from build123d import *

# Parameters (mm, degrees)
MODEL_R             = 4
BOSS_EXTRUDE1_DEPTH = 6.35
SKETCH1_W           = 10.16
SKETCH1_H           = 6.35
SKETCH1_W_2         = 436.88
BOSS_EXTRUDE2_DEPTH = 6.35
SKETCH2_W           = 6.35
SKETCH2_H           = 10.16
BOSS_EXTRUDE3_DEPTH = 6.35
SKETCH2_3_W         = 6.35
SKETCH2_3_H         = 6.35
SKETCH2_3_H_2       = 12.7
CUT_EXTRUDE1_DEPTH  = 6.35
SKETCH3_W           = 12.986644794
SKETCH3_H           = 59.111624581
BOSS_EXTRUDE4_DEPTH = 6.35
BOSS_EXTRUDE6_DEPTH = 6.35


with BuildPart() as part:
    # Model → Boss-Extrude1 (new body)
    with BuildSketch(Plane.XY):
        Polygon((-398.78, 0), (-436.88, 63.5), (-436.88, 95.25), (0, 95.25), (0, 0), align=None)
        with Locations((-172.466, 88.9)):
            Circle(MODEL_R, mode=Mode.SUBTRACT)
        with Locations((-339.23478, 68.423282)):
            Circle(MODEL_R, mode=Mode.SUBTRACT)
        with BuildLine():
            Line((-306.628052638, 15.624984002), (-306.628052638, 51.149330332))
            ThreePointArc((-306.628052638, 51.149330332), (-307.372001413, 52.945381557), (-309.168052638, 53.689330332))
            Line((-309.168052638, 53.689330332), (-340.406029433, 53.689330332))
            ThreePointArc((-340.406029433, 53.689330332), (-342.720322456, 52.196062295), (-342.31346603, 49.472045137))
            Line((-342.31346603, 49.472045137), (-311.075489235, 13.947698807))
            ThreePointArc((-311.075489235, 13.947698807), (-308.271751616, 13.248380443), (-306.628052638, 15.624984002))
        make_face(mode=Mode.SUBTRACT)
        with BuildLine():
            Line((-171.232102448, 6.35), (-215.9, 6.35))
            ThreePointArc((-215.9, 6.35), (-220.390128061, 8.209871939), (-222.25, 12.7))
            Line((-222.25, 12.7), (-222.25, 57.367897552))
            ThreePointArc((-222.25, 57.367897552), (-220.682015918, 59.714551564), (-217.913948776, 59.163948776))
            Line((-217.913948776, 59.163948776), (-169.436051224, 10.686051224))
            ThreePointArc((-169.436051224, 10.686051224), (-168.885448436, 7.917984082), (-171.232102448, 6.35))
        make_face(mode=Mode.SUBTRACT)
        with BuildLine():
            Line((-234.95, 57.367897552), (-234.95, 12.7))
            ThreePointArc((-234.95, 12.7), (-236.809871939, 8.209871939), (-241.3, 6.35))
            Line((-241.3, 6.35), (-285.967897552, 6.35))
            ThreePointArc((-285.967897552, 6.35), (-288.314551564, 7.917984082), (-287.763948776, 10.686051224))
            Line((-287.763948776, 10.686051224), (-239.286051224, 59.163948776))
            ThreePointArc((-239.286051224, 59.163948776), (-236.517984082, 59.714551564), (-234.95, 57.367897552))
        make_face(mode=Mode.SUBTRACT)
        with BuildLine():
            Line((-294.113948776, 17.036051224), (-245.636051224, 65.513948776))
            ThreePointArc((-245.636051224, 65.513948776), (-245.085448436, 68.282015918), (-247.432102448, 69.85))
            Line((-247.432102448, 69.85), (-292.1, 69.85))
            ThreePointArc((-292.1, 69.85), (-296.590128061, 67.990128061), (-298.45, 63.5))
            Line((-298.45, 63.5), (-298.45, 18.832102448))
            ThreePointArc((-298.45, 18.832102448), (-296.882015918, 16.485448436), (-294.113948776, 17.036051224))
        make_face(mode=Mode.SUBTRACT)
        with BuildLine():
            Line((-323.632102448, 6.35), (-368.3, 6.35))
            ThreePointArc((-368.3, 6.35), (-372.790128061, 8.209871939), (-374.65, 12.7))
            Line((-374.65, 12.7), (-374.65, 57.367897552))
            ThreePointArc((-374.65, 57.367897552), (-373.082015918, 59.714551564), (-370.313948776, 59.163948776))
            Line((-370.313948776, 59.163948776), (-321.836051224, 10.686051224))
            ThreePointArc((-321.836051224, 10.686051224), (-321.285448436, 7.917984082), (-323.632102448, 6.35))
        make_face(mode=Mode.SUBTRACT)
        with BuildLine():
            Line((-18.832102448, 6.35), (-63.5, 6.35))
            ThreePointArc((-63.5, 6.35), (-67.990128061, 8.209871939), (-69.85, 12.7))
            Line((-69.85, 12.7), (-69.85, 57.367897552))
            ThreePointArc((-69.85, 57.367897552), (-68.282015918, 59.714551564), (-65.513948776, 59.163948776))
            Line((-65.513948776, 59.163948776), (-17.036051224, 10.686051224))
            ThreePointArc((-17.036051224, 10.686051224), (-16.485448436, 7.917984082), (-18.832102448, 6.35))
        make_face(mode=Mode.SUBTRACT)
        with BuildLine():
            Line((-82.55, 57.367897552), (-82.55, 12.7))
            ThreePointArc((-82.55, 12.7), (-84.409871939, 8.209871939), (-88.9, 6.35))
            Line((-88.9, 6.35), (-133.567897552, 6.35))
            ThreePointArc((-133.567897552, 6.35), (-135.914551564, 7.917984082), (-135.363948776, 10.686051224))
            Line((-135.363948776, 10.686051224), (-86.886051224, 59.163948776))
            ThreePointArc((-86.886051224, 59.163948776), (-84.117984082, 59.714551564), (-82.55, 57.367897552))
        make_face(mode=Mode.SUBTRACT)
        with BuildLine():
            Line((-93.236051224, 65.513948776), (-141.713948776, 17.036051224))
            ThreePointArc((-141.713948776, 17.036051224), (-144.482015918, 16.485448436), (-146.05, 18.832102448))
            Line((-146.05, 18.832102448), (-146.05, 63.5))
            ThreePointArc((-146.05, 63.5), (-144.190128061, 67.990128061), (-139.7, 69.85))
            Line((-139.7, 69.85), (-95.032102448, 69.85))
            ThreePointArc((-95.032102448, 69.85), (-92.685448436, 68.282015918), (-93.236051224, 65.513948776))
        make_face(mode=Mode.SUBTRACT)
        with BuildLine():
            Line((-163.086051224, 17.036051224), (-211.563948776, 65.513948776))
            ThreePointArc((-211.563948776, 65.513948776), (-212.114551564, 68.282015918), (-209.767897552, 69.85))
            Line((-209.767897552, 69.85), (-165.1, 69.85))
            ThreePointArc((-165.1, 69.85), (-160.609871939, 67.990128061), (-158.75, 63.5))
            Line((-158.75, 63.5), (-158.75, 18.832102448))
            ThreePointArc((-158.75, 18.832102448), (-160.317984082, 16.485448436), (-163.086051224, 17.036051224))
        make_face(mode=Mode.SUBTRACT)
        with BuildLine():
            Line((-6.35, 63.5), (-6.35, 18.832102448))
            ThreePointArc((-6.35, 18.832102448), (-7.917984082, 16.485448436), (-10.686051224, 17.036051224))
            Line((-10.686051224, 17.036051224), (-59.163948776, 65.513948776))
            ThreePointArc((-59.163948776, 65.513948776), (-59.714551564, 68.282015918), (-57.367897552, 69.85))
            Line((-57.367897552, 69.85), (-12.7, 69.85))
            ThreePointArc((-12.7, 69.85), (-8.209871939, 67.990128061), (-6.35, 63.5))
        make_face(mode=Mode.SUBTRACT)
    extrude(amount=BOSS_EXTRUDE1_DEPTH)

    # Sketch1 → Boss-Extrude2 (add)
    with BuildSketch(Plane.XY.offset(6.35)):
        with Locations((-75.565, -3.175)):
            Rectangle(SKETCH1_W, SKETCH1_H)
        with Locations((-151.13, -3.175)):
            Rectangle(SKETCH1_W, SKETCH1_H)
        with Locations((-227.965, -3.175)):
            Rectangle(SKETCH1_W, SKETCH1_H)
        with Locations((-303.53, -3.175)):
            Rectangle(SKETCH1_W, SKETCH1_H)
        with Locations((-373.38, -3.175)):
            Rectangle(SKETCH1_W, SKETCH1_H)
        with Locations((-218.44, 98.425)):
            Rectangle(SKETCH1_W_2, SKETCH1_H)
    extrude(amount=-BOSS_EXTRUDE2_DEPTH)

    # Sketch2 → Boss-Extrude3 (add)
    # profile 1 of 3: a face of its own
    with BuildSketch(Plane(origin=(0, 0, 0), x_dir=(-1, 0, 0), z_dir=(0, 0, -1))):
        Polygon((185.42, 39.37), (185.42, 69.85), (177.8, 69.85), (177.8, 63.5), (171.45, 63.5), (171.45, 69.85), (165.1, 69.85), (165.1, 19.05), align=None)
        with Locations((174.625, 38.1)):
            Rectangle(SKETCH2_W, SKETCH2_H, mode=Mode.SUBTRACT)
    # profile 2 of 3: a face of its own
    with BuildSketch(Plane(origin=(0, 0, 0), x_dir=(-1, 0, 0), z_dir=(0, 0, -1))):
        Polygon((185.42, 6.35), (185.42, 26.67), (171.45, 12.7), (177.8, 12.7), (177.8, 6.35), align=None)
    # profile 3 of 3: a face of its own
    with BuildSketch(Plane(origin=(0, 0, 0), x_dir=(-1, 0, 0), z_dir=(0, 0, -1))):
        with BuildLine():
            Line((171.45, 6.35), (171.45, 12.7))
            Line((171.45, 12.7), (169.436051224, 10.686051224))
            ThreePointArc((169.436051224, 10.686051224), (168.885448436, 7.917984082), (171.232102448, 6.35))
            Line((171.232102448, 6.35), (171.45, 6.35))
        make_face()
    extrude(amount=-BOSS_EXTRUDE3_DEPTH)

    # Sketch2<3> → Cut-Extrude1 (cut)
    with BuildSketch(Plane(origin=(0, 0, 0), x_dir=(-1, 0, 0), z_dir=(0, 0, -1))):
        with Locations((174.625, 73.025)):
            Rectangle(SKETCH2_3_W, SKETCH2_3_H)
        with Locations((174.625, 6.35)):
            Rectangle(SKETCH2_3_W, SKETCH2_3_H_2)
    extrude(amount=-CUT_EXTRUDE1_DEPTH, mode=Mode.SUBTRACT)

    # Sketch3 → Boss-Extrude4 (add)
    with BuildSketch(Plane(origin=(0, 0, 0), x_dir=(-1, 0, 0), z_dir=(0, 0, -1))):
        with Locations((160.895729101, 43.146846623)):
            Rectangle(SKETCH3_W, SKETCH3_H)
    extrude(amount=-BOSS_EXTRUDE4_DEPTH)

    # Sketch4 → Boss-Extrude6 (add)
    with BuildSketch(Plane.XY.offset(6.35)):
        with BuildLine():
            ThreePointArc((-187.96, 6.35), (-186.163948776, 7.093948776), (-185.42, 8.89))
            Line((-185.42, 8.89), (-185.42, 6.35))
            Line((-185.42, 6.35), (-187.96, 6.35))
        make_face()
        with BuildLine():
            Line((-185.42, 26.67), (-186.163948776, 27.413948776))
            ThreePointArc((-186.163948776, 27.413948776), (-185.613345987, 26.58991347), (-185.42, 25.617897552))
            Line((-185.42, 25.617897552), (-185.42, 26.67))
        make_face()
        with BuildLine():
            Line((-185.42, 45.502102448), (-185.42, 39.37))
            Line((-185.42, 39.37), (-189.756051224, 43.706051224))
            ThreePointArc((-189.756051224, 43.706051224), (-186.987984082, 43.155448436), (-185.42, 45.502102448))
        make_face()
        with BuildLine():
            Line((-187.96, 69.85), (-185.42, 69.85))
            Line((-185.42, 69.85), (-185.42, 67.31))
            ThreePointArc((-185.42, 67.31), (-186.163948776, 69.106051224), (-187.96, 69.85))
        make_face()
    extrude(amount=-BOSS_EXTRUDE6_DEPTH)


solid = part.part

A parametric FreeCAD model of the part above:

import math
import FreeCAD as App
import Part
import Sketcher
Q = App.Units.Quantity

doc = App.newDocument("Part")
body = doc.addObject("PartDesign::Body", "Body")

sketch1 = body.newObject("Sketcher::SketchObject", "Sketch")
sketch1.AttachmentSupport = (doc.getObject("XY_Plane"), [""])
sketch1.MapMode = "FlatFace"
sketch1.addGeometry(Part.LineSegment(App.Vector(-436.9, 63.5, 0), App.Vector(-398.8, 0, 0)), False)
sketch1.addGeometry(Part.LineSegment(App.Vector(-398.8, 0, 0), App.Vector(0, 0, 0)), False)
sketch1.addGeometry(Part.LineSegment(App.Vector(0, 0, 0), App.Vector(0, 95.2, 0)), False)
sketch1.addGeometry(Part.LineSegment(App.Vector(0, 95.2, 0), App.Vector(-436.9, 95.2, 0)), False)
sketch1.addGeometry(Part.LineSegment(App.Vector(-436.9, 95.2, 0), App.Vector(-436.9, 63.5, 0)), False)
sketch1.addGeometry(Part.LineSegment(App.Vector(-18.8, 6.3, 0), App.Vector(-63.5, 6.3, 0)), False)
sketch1.addGeometry(Part.ArcOfCircle(Part.Circle(App.Vector(-63.5, 12.7, 0), App.Vector(0, 0, 1), 6.3), math.radians(180), math.radians(270)), False)
sketch1.addGeometry(Part.LineSegment(App.Vector(-69.8, 12.7, 0), App.Vector(-69.8, 57.4, 0)), False)
sketch1.addGeometry(Part.ArcOfCircle(Part.Circle(App.Vector(-67.3, 57.4, 0), App.Vector(0, 0, 1), 2.5), math.radians(45), math.radians(180)), False)
sketch1.addGeometry(Part.LineSegment(App.Vector(-65.5, 59.2, 0), App.Vector(-17, 10.7, 0)), False)
sketch1.addGeometry(Part.ArcOfCircle(Part.Circle(App.Vector(-18.8, 8.9, 0), App.Vector(0, 0, 1), 2.5), math.radians(-90), math.radians(45)), False)
sketch1.addGeometry(Part.LineSegment(App.Vector(-6.3, 63.5, 0), App.Vector(-6.3, 18.8, 0)), False)
sketch1.addGeometry(Part.ArcOfCircle(Part.Circle(App.Vector(-8.9, 18.8, 0), App.Vector(0, 0, 1), 2.5), math.radians(-135), math.radians(0)), False)
sketch1.addGeometry(Part.LineSegment(App.Vector(-10.7, 17, 0), App.Vector(-59.2, 65.5, 0)), False)
sketch1.addGeometry(Part.ArcOfCircle(Part.Circle(App.Vector(-57.4, 67.3, 0), App.Vector(0, 0, 1), 2.5), math.radians(90), math.radians(225)), False)
sketch1.addGeometry(Part.LineSegment(App.Vector(-57.4, 69.8, 0), App.Vector(-12.7, 69.8, 0)), False)
sketch1.addGeometry(Part.ArcOfCircle(Part.Circle(App.Vector(-12.7, 63.5, 0), App.Vector(0, 0, 1), 6.3), math.radians(0), math.radians(90)), False)
sketch1.addGeometry(Part.LineSegment(App.Vector(-82.5, 57.4, 0), App.Vector(-82.5, 12.7, 0)), False)
sketch1.addGeometry(Part.ArcOfCircle(Part.Circle(App.Vector(-88.9, 12.7, 0), App.Vector(0, 0, 1), 6.3), math.radians(-90), math.radians(0)), False)
sketch1.addGeometry(Part.LineSegment(App.Vector(-88.9, 6.3, 0), App.Vector(-133.6, 6.3, 0)), False)
sketch1.addGeometry(Part.ArcOfCircle(Part.Circle(App.Vector(-133.6, 8.9, 0), App.Vector(0, 0, 1), 2.5), math.radians(135), math.radians(270)), False)
sketch1.addGeometry(Part.LineSegment(App.Vector(-135.4, 10.7, 0), App.Vector(-86.9, 59.2, 0)), False)
sketch1.addGeometry(Part.ArcOfCircle(Part.Circle(App.Vector(-85.1, 57.4, 0), App.Vector(0, 0, 1), 2.5), math.radians(0), math.radians(135)), False)
sketch1.addGeometry(Part.LineSegment(App.Vector(-93.2, 65.5, 0), App.Vector(-141.7, 17, 0)), False)
sketch1.addGeometry(Part.ArcOfCircle(Part.Circle(App.Vector(-143.5, 18.8, 0), App.Vector(0, 0, 1), 2.5), math.radians(-180), math.radians(-45)), False)
sketch1.addGeometry(Part.LineSegment(App.Vector(-146.1, 18.8, 0), App.Vector(-146.1, 63.5, 0)), False)
sketch1.addGeometry(Part.ArcOfCircle(Part.Circle(App.Vector(-139.7, 63.5, 0), App.Vector(0, 0, 1), 6.3), math.radians(90), math.radians(180)), False)
sketch1.addGeometry(Part.LineSegment(App.Vector(-139.7, 69.8, 0), App.Vector(-95, 69.8, 0)), False)
sketch1.addGeometry(Part.ArcOfCircle(Part.Circle(App.Vector(-95, 67.3, 0), App.Vector(0, 0, 1), 2.5), math.radians(-45), math.radians(90)), False)
sketch1.addGeometry(Part.LineSegment(App.Vector(-163.1, 17, 0), App.Vector(-211.6, 65.5, 0)), False)
sketch1.addGeometry(Part.ArcOfCircle(Part.Circle(App.Vector(-209.8, 67.3, 0), App.Vector(0, 0, 1), 2.5), math.radians(90), math.radians(225)), False)
sketch1.addGeometry(Part.LineSegment(App.Vector(-209.8, 69.8, 0), App.Vector(-165.1, 69.8, 0)), False)
sketch1.addGeometry(Part.ArcOfCircle(Part.Circle(App.Vector(-165.1, 63.5, 0), App.Vector(0, 0, 1), 6.3), math.radians(0), math.radians(90)), False)
sketch1.addGeometry(Part.LineSegment(App.Vector(-158.8, 63.5, 0), App.Vector(-158.8, 18.8, 0)), False)
sketch1.addGeometry(Part.ArcOfCircle(Part.Circle(App.Vector(-161.3, 18.8, 0), App.Vector(0, 0, 1), 2.5), math.radians(-135), math.radians(0)), False)
sketch1.addGeometry(Part.LineSegment(App.Vector(-171.2, 6.3, 0), App.Vector(-215.9, 6.3, 0)), False)
sketch1.addGeometry(Part.ArcOfCircle(Part.Circle(App.Vector(-215.9, 12.7, 0), App.Vector(0, 0, 1), 6.3), math.radians(180), math.radians(270)), False)
sketch1.addGeometry(Part.LineSegment(App.Vector(-222.2, 12.7, 0), App.Vector(-222.2, 57.4, 0)), False)
sketch1.addGeometry(Part.ArcOfCircle(Part.Circle(App.Vector(-219.7, 57.4, 0), App.Vector(0, 0, 1), 2.5), math.radians(45), math.radians(180)), False)
sketch1.addGeometry(Part.LineSegment(App.Vector(-217.9, 59.2, 0), App.Vector(-169.4, 10.7, 0)), False)
sketch1.addGeometry(Part.ArcOfCircle(Part.Circle(App.Vector(-171.2, 8.9, 0), App.Vector(0, 0, 1), 2.5), math.radians(-90), math.radians(45)), False)
sketch1.addGeometry(Part.LineSegment(App.Vector(-234.9, 57.4, 0), App.Vector(-234.9, 12.7, 0)), False)
sketch1.addGeometry(Part.ArcOfCircle(Part.Circle(App.Vector(-241.3, 12.7, 0), App.Vector(0, 0, 1), 6.3), math.radians(-90), math.radians(0)), False)
sketch1.addGeometry(Part.LineSegment(App.Vector(-241.3, 6.3, 0), App.Vector(-286, 6.3, 0)), False)
sketch1.addGeometry(Part.ArcOfCircle(Part.Circle(App.Vector(-286, 8.9, 0), App.Vector(0, 0, 1), 2.5), math.radians(135), math.radians(270)), False)
sketch1.addGeometry(Part.LineSegment(App.Vector(-287.8, 10.7, 0), App.Vector(-239.3, 59.2, 0)), False)
sketch1.addGeometry(Part.ArcOfCircle(Part.Circle(App.Vector(-237.5, 57.4, 0), App.Vector(0, 0, 1), 2.5), math.radians(0), math.radians(135)), False)
sketch1.addGeometry(Part.ArcOfCircle(Part.Circle(App.Vector(-295.9, 18.8, 0), App.Vector(0, 0, 1), 2.5), math.radians(-180), math.radians(-45)), False)
sketch1.addGeometry(Part.LineSegment(App.Vector(-298.4, 18.8, 0), App.Vector(-298.4, 63.5, 0)), False)
sketch1.addGeometry(Part.ArcOfCircle(Part.Circle(App.Vector(-292.1, 63.5, 0), App.Vector(0, 0, 1), 6.3), math.radians(90), math.radians(180)), False)
sketch1.addGeometry(Part.LineSegment(App.Vector(-292.1, 69.8, 0), App.Vector(-247.4, 69.8, 0)), False)
sketch1.addGeometry(Part.ArcOfCircle(Part.Circle(App.Vector(-247.4, 67.3, 0), App.Vector(0, 0, 1), 2.5), math.radians(-45), math.radians(90)), False)
sketch1.addGeometry(Part.LineSegment(App.Vector(-245.6, 65.5, 0), App.Vector(-294.1, 17, 0)), False)
sketch1.addGeometry(Part.ArcOfCircle(Part.Circle(App.Vector(-309.2, 15.6, 0), App.Vector(0, 0, 1), 2.5), math.radians(-139), math.radians(0)), False)
sketch1.addGeometry(Part.LineSegment(App.Vector(-311.1, 13.9, 0), App.Vector(-342.3, 49.5, 0)), False)
sketch1.addGeometry(Part.ArcOfCircle(Part.Circle(App.Vector(-340.4, 51.1, 0), App.Vector(0, 0, 1), 2.5), math.radians(90), math.radians(221)), False)
sketch1.addGeometry(Part.LineSegment(App.Vector(-340.4, 53.7, 0), App.Vector(-309.2, 53.7, 0)), False)
sketch1.addGeometry(Part.ArcOfCircle(Part.Circle(App.Vector(-309.2, 51.1, 0), App.Vector(0, 0, 1), 2.5), math.radians(0), math.radians(90)), False)
sketch1.addGeometry(Part.LineSegment(App.Vector(-306.6, 51.1, 0), App.Vector(-306.6, 15.6, 0)), False)
sketch1.addGeometry(Part.LineSegment(App.Vector(-323.6, 6.3, 0), App.Vector(-368.3, 6.3, 0)), False)
sketch1.addGeometry(Part.ArcOfCircle(Part.Circle(App.Vector(-368.3, 12.7, 0), App.Vector(0, 0, 1), 6.3), math.radians(180), math.radians(270)), False)
sketch1.addGeometry(Part.LineSegment(App.Vector(-374.6, 12.7, 0), App.Vector(-374.6, 57.4, 0)), False)
sketch1.addGeometry(Part.ArcOfCircle(Part.Circle(App.Vector(-372.1, 57.4, 0), App.Vector(0, 0, 1), 2.5), math.radians(45), math.radians(180)), False)
sketch1.addGeometry(Part.LineSegment(App.Vector(-370.3, 59.2, 0), App.Vector(-321.8, 10.7, 0)), False)
sketch1.addGeometry(Part.ArcOfCircle(Part.Circle(App.Vector(-323.6, 8.9, 0), App.Vector(0, 0, 1), 2.5), math.radians(-90), math.radians(45)), False)
sketch1.addGeometry(Part.Circle(App.Vector(-172.5, 88.9, 0), App.Vector(0, 0, 1), 4), False)
sketch1.addGeometry(Part.Circle(App.Vector(-339.2, 68.4, 0), App.Vector(0, 0, 1), 4), False)
sketch1.addConstraint(Sketcher.Constraint("Coincident", 0, 2, 1, 1))
sketch1.addConstraint(Sketcher.Constraint("Coincident", 1, 2, 2, 1))
sketch1.addConstraint(Sketcher.Constraint("Coincident", 2, 2, 3, 1))
sketch1.addConstraint(Sketcher.Constraint("Coincident", 3, 2, 4, 1))
sketch1.addConstraint(Sketcher.Constraint("Coincident", 4, 2, 0, 1))
sketch1.addConstraint(Sketcher.Constraint("Tangent", 5, 2, 6, 2))
sketch1.addConstraint(Sketcher.Constraint("Tangent", 6, 1, 7, 1))
sketch1.addConstraint(Sketcher.Constraint("Tangent", 7, 2, 8, 2))
sketch1.addConstraint(Sketcher.Constraint("Tangent", 8, 1, 9, 1))
sketch1.addConstraint(Sketcher.Constraint("Tangent", 9, 2, 10, 2))
sketch1.addConstraint(Sketcher.Constraint("Tangent", 10, 1, 5, 1))
sketch1.addConstraint(Sketcher.Constraint("Tangent", 11, 2, 12, 2))
sketch1.addConstraint(Sketcher.Constraint("Tangent", 12, 1, 13, 1))
sketch1.addConstraint(Sketcher.Constraint("Tangent", 13, 2, 14, 2))
sketch1.addConstraint(Sketcher.Constraint("Tangent", 14, 1, 15, 1))
sketch1.addConstraint(Sketcher.Constraint("Tangent", 15, 2, 16, 2))
sketch1.addConstraint(Sketcher.Constraint("Tangent", 16, 1, 11, 1))
sketch1.addConstraint(Sketcher.Constraint("Tangent", 17, 2, 18, 2))
sketch1.addConstraint(Sketcher.Constraint("Tangent", 18, 1, 19, 1))
sketch1.addConstraint(Sketcher.Constraint("Tangent", 19, 2, 20, 2))
sketch1.addConstraint(Sketcher.Constraint("Tangent", 20, 1, 21, 1))
sketch1.addConstraint(Sketcher.Constraint("Tangent", 21, 2, 22, 2))
sketch1.addConstraint(Sketcher.Constraint("Tangent", 22, 1, 17, 1))
sketch1.addConstraint(Sketcher.Constraint("Tangent", 23, 2, 24, 2))
sketch1.addConstraint(Sketcher.Constraint("Tangent", 24, 1, 25, 1))
sketch1.addConstraint(Sketcher.Constraint("Tangent", 25, 2, 26, 2))
sketch1.addConstraint(Sketcher.Constraint("Tangent", 26, 1, 27, 1))
sketch1.addConstraint(Sketcher.Constraint("Tangent", 27, 2, 28, 2))
sketch1.addConstraint(Sketcher.Constraint("Tangent", 28, 1, 23, 1))
sketch1.addConstraint(Sketcher.Constraint("Tangent", 29, 2, 30, 2))
sketch1.addConstraint(Sketcher.Constraint("Tangent", 30, 1, 31, 1))
sketch1.addConstraint(Sketcher.Constraint("Tangent", 31, 2, 32, 2))
sketch1.addConstraint(Sketcher.Constraint("Tangent", 32, 1, 33, 1))
sketch1.addConstraint(Sketcher.Constraint("Tangent", 33, 2, 34, 2))
sketch1.addConstraint(Sketcher.Constraint("Tangent", 34, 1, 29, 1))
sketch1.addConstraint(Sketcher.Constraint("Tangent", 35, 2, 36, 2))
sketch1.addConstraint(Sketcher.Constraint("Tangent", 36, 1, 37, 1))
sketch1.addConstraint(Sketcher.Constraint("Tangent", 37, 2, 38, 2))
sketch1.addConstraint(Sketcher.Constraint("Tangent", 38, 1, 39, 1))
sketch1.addConstraint(Sketcher.Constraint("Tangent", 39, 2, 40, 2))
sketch1.addConstraint(Sketcher.Constraint("Tangent", 40, 1, 35, 1))
sketch1.addConstraint(Sketcher.Constraint("Tangent", 41, 2, 42, 2))
sketch1.addConstraint(Sketcher.Constraint("Tangent", 42, 1, 43, 1))
sketch1.addConstraint(Sketcher.Constraint("Tangent", 43, 2, 44, 2))
sketch1.addConstraint(Sketcher.Constraint("Tangent", 44, 1, 45, 1))
sketch1.addConstraint(Sketcher.Constraint("Tangent", 45, 2, 46, 2))
sketch1.addConstraint(Sketcher.Constraint("Tangent", 46, 1, 41, 1))
sketch1.addConstraint(Sketcher.Constraint("Tangent", 47, 1, 48, 1))
sketch1.addConstraint(Sketcher.Constraint("Tangent", 48, 2, 49, 2))
sketch1.addConstraint(Sketcher.Constraint("Tangent", 49, 1, 50, 1))
sketch1.addConstraint(Sketcher.Constraint("Tangent", 50, 2, 51, 2))
sketch1.addConstraint(Sketcher.Constraint("Tangent", 51, 1, 52, 1))
sketch1.addConstraint(Sketcher.Constraint("Tangent", 52, 2, 47, 2))
sketch1.addConstraint(Sketcher.Constraint("Tangent", 53, 1, 54, 1))
sketch1.addConstraint(Sketcher.Constraint("Tangent", 54, 2, 55, 2))
sketch1.addConstraint(Sketcher.Constraint("Tangent", 55, 1, 56, 1))
sketch1.addConstraint(Sketcher.Constraint("Tangent", 56, 2, 57, 2))
sketch1.addConstraint(Sketcher.Constraint("Tangent", 57, 1, 58, 1))
sketch1.addConstraint(Sketcher.Constraint("Tangent", 58, 2, 53, 2))
sketch1.addConstraint(Sketcher.Constraint("Tangent", 59, 2, 60, 2))
sketch1.addConstraint(Sketcher.Constraint("Tangent", 60, 1, 61, 1))
sketch1.addConstraint(Sketcher.Constraint("Tangent", 61, 2, 62, 2))
sketch1.addConstraint(Sketcher.Constraint("Tangent", 62, 1, 63, 1))
sketch1.addConstraint(Sketcher.Constraint("Tangent", 63, 2, 64, 2))
sketch1.addConstraint(Sketcher.Constraint("Tangent", 64, 1, 59, 1))
sketch1.addConstraint(Sketcher.Constraint("Horizontal", 1))
sketch1.addConstraint(Sketcher.Constraint("Vertical", 2))
sketch1.addConstraint(Sketcher.Constraint("Horizontal", 3))
sketch1.addConstraint(Sketcher.Constraint("Vertical", 4))
sketch1.addConstraint(Sketcher.Constraint("Horizontal", 5))
sketch1.addConstraint(Sketcher.Constraint("Vertical", 7))
sketch1.addConstraint(Sketcher.Constraint("Vertical", 11))
sketch1.addConstraint(Sketcher.Constraint("Horizontal", 15))
sketch1.addConstraint(Sketcher.Constraint("Vertical", 17))
sketch1.addConstraint(Sketcher.Constraint("Horizontal", 19))
sketch1.addConstraint(Sketcher.Constraint("Vertical", 25))
sketch1.addConstraint(Sketcher.Constraint("Horizontal", 27))
sketch1.addConstraint(Sketcher.Constraint("Horizontal", 31))
sketch1.addConstraint(Sketcher.Constraint("Vertical", 33))
sketch1.addConstraint(Sketcher.Constraint("Horizontal", 35))
sketch1.addConstraint(Sketcher.Constraint("Vertical", 37))
sketch1.addConstraint(Sketcher.Constraint("Vertical", 41))
sketch1.addConstraint(Sketcher.Constraint("Horizontal", 43))
sketch1.addConstraint(Sketcher.Constraint("Vertical", 48))
sketch1.addConstraint(Sketcher.Constraint("Horizontal", 50))
sketch1.addConstraint(Sketcher.Constraint("Horizontal", 56))
sketch1.addConstraint(Sketcher.Constraint("Vertical", 58))
sketch1.addConstraint(Sketcher.Constraint("Horizontal", 59))
sketch1.addConstraint(Sketcher.Constraint("Vertical", 61))
sketch1.addConstraint(Sketcher.Constraint("Coincident", 1, 2, -1, 1))
sketch1.addConstraint(Sketcher.Constraint("Equal", 8, 10))
sketch1.addConstraint(Sketcher.Constraint("Equal", 10, 12))
sketch1.addConstraint(Sketcher.Constraint("Equal", 12, 14))
sketch1.addConstraint(Sketcher.Constraint("Equal", 6, 16))
sketch1.addConstraint(Sketcher.Constraint("Equal", 16, 18))
sketch1.addConstraint(Sketcher.Constraint("Equal", 14, 20))
sketch1.addConstraint(Sketcher.Constraint("Equal", 20, 22))
sketch1.addConstraint(Sketcher.Constraint("Equal", 22, 24))
sketch1.addConstraint(Sketcher.Constraint("Equal", 18, 26))
sketch1.addConstraint(Sketcher.Constraint("Equal", 24, 28))
sketch1.addConstraint(Sketcher.Constraint("Equal", 28, 30))
sketch1.addConstraint(Sketcher.Constraint("Equal", 26, 32))
sketch1.addConstraint(Sketcher.Constraint("Equal", 30, 34))
sketch1.addConstraint(Sketcher.Constraint("Equal", 32, 36))
sketch1.addConstraint(Sketcher.Constraint("Equal", 34, 38))
sketch1.addConstraint(Sketcher.Constraint("Equal", 38, 40))
sketch1.addConstraint(Sketcher.Constraint("Equal", 36, 42))
sketch1.addConstraint(Sketcher.Constraint("Equal", 40, 44))
sketch1.addConstraint(Sketcher.Constraint("Equal", 44, 46))
sketch1.addConstraint(Sketcher.Constraint("Equal", 46, 47))
sketch1.addConstraint(Sketcher.Constraint("Equal", 42, 49))
sketch1.addConstraint(Sketcher.Constraint("Equal", 47, 51))
sketch1.addConstraint(Sketcher.Constraint("Equal", 51, 53))
sketch1.addConstraint(Sketcher.Constraint("Equal", 53, 55))
sketch1.addConstraint(Sketcher.Constraint("Equal", 55, 57))
sketch1.addConstraint(Sketcher.Constraint("Equal", 49, 60))
sketch1.addConstraint(Sketcher.Constraint("Equal", 57, 62))
sketch1.addConstraint(Sketcher.Constraint("Equal", 62, 64))
sketch1.addConstraint(Sketcher.Constraint("Equal", 65, 66))
sketch1.addConstraint(Sketcher.Constraint("Parallel", 9, 13))
sketch1.addConstraint(Sketcher.Constraint("Perpendicular", 13, 21))
sketch1.addConstraint(Sketcher.Constraint("Parallel", 21, 23))
sketch1.addConstraint(Sketcher.Constraint("Perpendicular", 23, 29))
sketch1.addConstraint(Sketcher.Constraint("Parallel", 29, 39))
sketch1.addConstraint(Sketcher.Constraint("Perpendicular", 39, 45))
sketch1.addConstraint(Sketcher.Constraint("Parallel", 45, 52))
sketch1.addConstraint(Sketcher.Constraint("Perpendicular", 52, 63))
sketch1.addConstraint(Sketcher.Constraint("Horizontal", 6, 3, 18, 3))
sketch1.addConstraint(Sketcher.Constraint("Horizontal", 8, 3, 22, 3))
sketch1.addConstraint(Sketcher.Constraint("Horizontal", 12, 3, 24, 3))
sketch1.addConstraint(Sketcher.Constraint("Horizontal", 16, 3, 26, 3))
sketch1.addConstraint(Sketcher.Constraint("Horizontal", 28, 3, 30, 3))
sketch1.addConstraint(Sketcher.Constraint("Horizontal", 24, 3, 34, 3))
sketch1.addConstraint(Sketcher.Constraint("Horizontal", 18, 3, 36, 3))
sketch1.addConstraint(Sketcher.Constraint("Horizontal", 22, 3, 38, 3))
sketch1.addConstraint(Sketcher.Constraint("Horizontal", 36, 3, 42, 3))
sketch1.addConstraint(Sketcher.Constraint("Horizontal", 38, 3, 46, 3))
sketch1.addConstraint(Sketcher.Constraint("Horizontal", 34, 3, 47, 3))
sketch1.addConstraint(Sketcher.Constraint("Horizontal", 32, 3, 49, 3))
sketch1.addConstraint(Sketcher.Constraint("Horizontal", 42, 3, 60, 3))
sketch1.addConstraint(Sketcher.Constraint("Horizontal", 46, 3, 62, 3))
sketch1.addConstraint(Sketcher.Constraint("Horizontal", 49, 3, 4, 2))
sketch1.addConstraint(Sketcher.Constraint("Horizontal", 9, 2, 20, 1))
sketch1.addConstraint(Sketcher.Constraint("Equal", 5, 15))
sketch1.addConstraint(Sketcher.Constraint("Radius", 8, Q("0.1 in")))
sketch1.addConstraint(Sketcher.Constraint("Radius", 6, Q("0.25 in")))
sketch1.addConstraint(Sketcher.Constraint("DistanceX", 1, 1, 1, 2, Q("15.7 in")))
sketch1.addConstraint(Sketcher.Constraint("DistanceX", 3, 2, 3, 1, Q("17.2 in")))
sketch1.addConstraint(Sketcher.Constraint("DistanceY", 2, 1, 2, 2, Q("3.75 in")))
sketch1.addConstraint(Sketcher.Constraint("DistanceY", 4, 2, 4, 1, Q("1.25 in")))
sketch1.addConstraint(Sketcher.Constraint("DistanceX", 6, 3, -1, 1, Q("2.5 in")))
sketch1.addConstraint(Sketcher.Constraint("DistanceY", -1, 1, 6, 3, Q("0.5 in")))
sketch1.addConstraint(Sketcher.Constraint("DistanceX", 16, 3, -1, 1, Q("0.5 in")))
sketch1.addConstraint(Sketcher.Constraint("DistanceX", 18, 3, -1, 1, Q("3.5 in")))
sketch1.addConstraint(Sketcher.Constraint("DistanceX", 26, 3, -1, 1, Q("5.5 in")))
sketch1.addConstraint(Sketcher.Constraint("DistanceX", 32, 3, -1, 1, Q("6.5 in")))
sketch1.addConstraint(Sketcher.Constraint("DistanceX", 36, 3, -1, 1, Q("8.5 in")))
sketch1.addConstraint(Sketcher.Constraint("DistanceX", 42, 3, -1, 1, Q("9.5 in")))
sketch1.addConstraint(Sketcher.Constraint("DistanceX", 49, 3, -1, 1, Q("11.5 in")))
sketch1.addConstraint(Sketcher.Constraint("DistanceX", 60, 3, -1, 1, Q("14.5 in")))
sketch1.addConstraint(Sketcher.Constraint("DistanceY", -1, 1, 65, 3, Q("3.5 in")))
sketch1.addConstraint(Sketcher.Constraint("Diameter", 65, 8.0))
sketch1.addConstraint(Sketcher.Constraint("DistanceX", 65, 3, -1, 1, Q("6.79 in")))
sketch1.addConstraint(Sketcher.Constraint("DistanceX", 66, 3, -1, 1, Q("13.3557 in")))
sketch1.addConstraint(Sketcher.Constraint("Distance", 9, 68.5581))
sketch1.addConstraint(Sketcher.Constraint("DistanceY", -1, 1, 53, 1, 13.947699))
sketch1.addConstraint(Sketcher.Constraint("Distance", 54, 47.305289))
sketch1.addConstraint(Sketcher.Constraint("DistanceX", 56, 1, 56, 2, 31.237977))
sketch1.addConstraint(Sketcher.Constraint("DistanceX", 55, 3, -1, 1, 340.406029))
sketch1.addConstraint(Sketcher.Constraint("DistanceY", -1, 1, 66, 3, 68.423282))
pad1 = body.newObject("PartDesign::Pad", "Pad")
pad1.Profile = sketch1
pad1.Length = Q("0.25 in")

sketch2 = body.newObject("Sketcher::SketchObject", "Sketch001")
sketch2.AttachmentSupport = (doc.getObject("XY_Plane"), [""])
sketch2.MapMode = "FlatFace"
sketch2.AttachmentOffset = App.Placement(App.Vector(0, 0, 0.25 * 25.4), App.Rotation())
sketch2.addGeometry(Part.LineSegment(App.Vector(-81, 0, 0), App.Vector(-81, -6, 0)), False)
sketch2.addGeometry(Part.LineSegment(App.Vector(-81, -6, 0), App.Vector(-70, -6, 0)), False)
sketch2.addGeometry(Part.LineSegment(App.Vector(-70, -6, 0), App.Vector(-70, 0, 0)), False)
sketch2.addGeometry(Part.LineSegment(App.Vector(-70, 0, 0), App.Vector(-81, 0, 0)), False)
sketch2.addGeometry(Part.LineSegment(App.Vector(-156, 0, 0), App.Vector(-156, -6, 0)), False)
sketch2.addGeometry(Part.LineSegment(App.Vector(-156, -6, 0), App.Vector(-146, -6, 0)), False)
sketch2.addGeometry(Part.LineSegment(App.Vector(-146, -6, 0), App.Vector(-146, 0, 0)), False)
sketch2.addGeometry(Part.LineSegment(App.Vector(-146, 0, 0), App.Vector(-156, 0, 0)), False)
sketch2.addGeometry(Part.LineSegment(App.Vector(-233, 0, 0), App.Vector(-233, -6, 0)), False)
sketch2.addGeometry(Part.LineSegment(App.Vector(-233, -6, 0), App.Vector(-223, -6, 0)), False)
sketch2.addGeometry(Part.LineSegment(App.Vector(-223, -6, 0), App.Vector(-223, 0, 0)), False)
sketch2.addGeometry(Part.LineSegment(App.Vector(-223, 0, 0), App.Vector(-233, 0, 0)), False)
sketch2.addGeometry(Part.LineSegment(App.Vector(-309, 0, 0), App.Vector(-309, -6, 0)), False)
sketch2.addGeometry(Part.LineSegment(App.Vector(-309, -6, 0), App.Vector(-298, -6, 0)), False)
sketch2.addGeometry(Part.LineSegment(App.Vector(-298, -6, 0), App.Vector(-298, 0, 0)), False)
sketch2.addGeometry(Part.LineSegment(App.Vector(-298, 0, 0), App.Vector(-309, 0, 0)), False)
sketch2.addGeometry(Part.LineSegment(App.Vector(-378, 0, 0), App.Vector(-378, -6, 0)), False)
sketch2.addGeometry(Part.LineSegment(App.Vector(-378, -6, 0), App.Vector(-368, -6, 0)), False)
sketch2.addGeometry(Part.LineSegment(App.Vector(-368, -6, 0), App.Vector(-368, 0, 0)), False)
sketch2.addGeometry(Part.LineSegment(App.Vector(-368, 0, 0), App.Vector(-378, 0, 0)), False)
sketch2.addGeometry(Part.LineSegment(App.Vector(-437, 102, 0), App.Vector(-437, 95, 0)), False)
sketch2.addGeometry(Part.LineSegment(App.Vector(-437, 95, 0), App.Vector(0, 95, 0)), False)
sketch2.addGeometry(Part.LineSegment(App.Vector(0, 95, 0), App.Vector(0, 102, 0)), False)
sketch2.addGeometry(Part.LineSegment(App.Vector(0, 102, 0), App.Vector(-437, 102, 0)), False)
sketch2.addConstraint(Sketcher.Constraint("Coincident", 0, 2, 1, 1))
sketch2.addConstraint(Sketcher.Constraint("Coincident", 1, 2, 2, 1))
sketch2.addConstraint(Sketcher.Constraint("Coincident", 2, 2, 3, 1))
sketch2.addConstraint(Sketcher.Constraint("Coincident", 3, 2, 0, 1))
sketch2.addConstraint(Sketcher.Constraint("Coincident", 4, 2, 5, 1))
sketch2.addConstraint(Sketcher.Constraint("Coincident", 5, 2, 6, 1))
sketch2.addConstraint(Sketcher.Constraint("Coincident", 6, 2, 7, 1))
sketch2.addConstraint(Sketcher.Constraint("Coincident", 7, 2, 4, 1))
sketch2.addConstraint(Sketcher.Constraint("Coincident", 8, 2, 9, 1))
sketch2.addConstraint(Sketcher.Constraint("Coincident", 9, 2, 10, 1))
sketch2.addConstraint(Sketcher.Constraint("Coincident", 10, 2, 11, 1))
sketch2.addConstraint(Sketcher.Constraint("Coincident", 11, 2, 8, 1))
sketch2.addConstraint(Sketcher.Constraint("Coincident", 12, 2, 13, 1))
sketch2.addConstraint(Sketcher.Constraint("Coincident", 13, 2, 14, 1))
sketch2.addConstraint(Sketcher.Constraint("Coincident", 14, 2, 15, 1))
sketch2.addConstraint(Sketcher.Constraint("Coincident", 15, 2, 12, 1))
sketch2.addConstraint(Sketcher.Constraint("Coincident", 16, 2, 17, 1))
sketch2.addConstraint(Sketcher.Constraint("Coincident", 17, 2, 18, 1))
sketch2.addConstraint(Sketcher.Constraint("Coincident", 18, 2, 19, 1))
sketch2.addConstraint(Sketcher.Constraint("Coincident", 19, 2, 16, 1))
sketch2.addConstraint(Sketcher.Constraint("Coincident", 20, 2, 21, 1))
sketch2.addConstraint(Sketcher.Constraint("Coincident", 21, 2, 22, 1))
sketch2.addConstraint(Sketcher.Constraint("Coincident", 22, 2, 23, 1))
sketch2.addConstraint(Sketcher.Constraint("Coincident", 23, 2, 20, 1))
sketch2.addConstraint(Sketcher.Constraint("Vertical", 0))
sketch2.addConstraint(Sketcher.Constraint("Horizontal", 1))
sketch2.addConstraint(Sketcher.Constraint("Vertical", 2))
sketch2.addConstraint(Sketcher.Constraint("Horizontal", 3))
sketch2.addConstraint(Sketcher.Constraint("Vertical", 4))
sketch2.addConstraint(Sketcher.Constraint("Horizontal", 5))
sketch2.addConstraint(Sketcher.Constraint("Vertical", 6))
sketch2.addConstraint(Sketcher.Constraint("Horizontal", 7))
sketch2.addConstraint(Sketcher.Constraint("Vertical", 8))
sketch2.addConstraint(Sketcher.Constraint("Horizontal", 9))
sketch2.addConstraint(Sketcher.Constraint("Vertical", 10))
sketch2.addConstraint(Sketcher.Constraint("Horizontal", 11))
sketch2.addConstraint(Sketcher.Constraint("Vertical", 12))
sketch2.addConstraint(Sketcher.Constraint("Horizontal", 13))
sketch2.addConstraint(Sketcher.Constraint("Vertical", 14))
sketch2.addConstraint(Sketcher.Constraint("Horizontal", 15))
sketch2.addConstraint(Sketcher.Constraint("Vertical", 16))
sketch2.addConstraint(Sketcher.Constraint("Horizontal", 17))
sketch2.addConstraint(Sketcher.Constraint("Vertical", 18))
sketch2.addConstraint(Sketcher.Constraint("Horizontal", 19))
sketch2.addConstraint(Sketcher.Constraint("Vertical", 20))
sketch2.addConstraint(Sketcher.Constraint("Horizontal", 21))
sketch2.addConstraint(Sketcher.Constraint("Vertical", 22))
sketch2.addConstraint(Sketcher.Constraint("Horizontal", 23))
sketch2.addConstraint(Sketcher.Constraint("PointOnObject", 2, 2, -1))
sketch2.addConstraint(Sketcher.Constraint("PointOnObject", 6, 2, -1))
sketch2.addConstraint(Sketcher.Constraint("PointOnObject", 10, 2, -1))
sketch2.addConstraint(Sketcher.Constraint("PointOnObject", 14, 2, -1))
sketch2.addConstraint(Sketcher.Constraint("PointOnObject", 18, 2, -1))
sketch2.addConstraint(Sketcher.Constraint("PointOnObject", 21, 2, -2))
sketch2.addConstraint(Sketcher.Constraint("Horizontal", 1, 2, 4, 2))
sketch2.addConstraint(Sketcher.Constraint("Horizontal", 5, 2, 8, 2))
sketch2.addConstraint(Sketcher.Constraint("Horizontal", 9, 2, 12, 2))
sketch2.addConstraint(Sketcher.Constraint("Horizontal", 13, 2, 16, 2))
sketch2.addConstraint(Sketcher.Constraint("Equal", 3, 5))
sketch2.addConstraint(Sketcher.Constraint("Equal", 7, 9))
sketch2.addConstraint(Sketcher.Constraint("Equal", 11, 13))
sketch2.addConstraint(Sketcher.Constraint("Equal", 15, 17))
sketch2.addConstraint(Sketcher.Constraint("Equal", 18, 20))
sketch2.addConstraint(Sketcher.Constraint("DistanceX", 1, 1, 1, 2, Q("0.4 in")))
sketch2.addConstraint(Sketcher.Constraint("DistanceX", 21, 1, 21, 2, Q("17.2 in")))
sketch2.addConstraint(Sketcher.Constraint("DistanceY", -1, 1, 22, 2, Q("4 in")))
sketch2.addConstraint(Sketcher.Constraint("DistanceX", 8, 2, 0, 2, Q("6 in")))
sketch2.addConstraint(Sketcher.Constraint("DistanceX", 12, 2, 4, 2, Q("6 in")))
sketch2.addConstraint(Sketcher.Constraint("DistanceY", 0, 2, 0, 1, Q("0.25 in")))
sketch2.addConstraint(Sketcher.Constraint("DistanceX", 16, 2, -1, 1, Q("14.9 in")))
sketch2.addConstraint(Sketcher.Constraint("DistanceX", 4, 2, -1, 1, Q("6.15 in")))
sketch2.addConstraint(Sketcher.Constraint("DistanceX", 0, 2, -1, 1, Q("3.175 in")))
pad2 = body.newObject("PartDesign::Pad", "Pad001")
pad2.Profile = sketch2
pad2.Length = Q("0.25 in")
pad2.Reversed = True

sketch3 = body.newObject("Sketcher::SketchObject", "Sketch002")
sketch3.AttachmentSupport = (doc.getObject("XY_Plane"), [""])
sketch3.MapMode = "FlatFace"
sketch3.addGeometry(Part.LineSegment(App.Vector(-185.42, 39.37, 0), App.Vector(-185.42, 69.85, 0)), False)
sketch3.addGeometry(Part.LineSegment(App.Vector(-185.42, 69.85, 0), App.Vector(-177.8, 69.85, 0)), False)
sketch3.addGeometry(Part.LineSegment(App.Vector(-177.8, 69.85, 0), App.Vector(-177.8, 63.5, 0)), False)
sketch3.addGeometry(Part.LineSegment(App.Vector(-177.8, 63.5, 0), App.Vector(-171.45, 63.5, 0)), False)
sketch3.addGeometry(Part.LineSegment(App.Vector(-171.45, 63.5, 0), App.Vector(-171.45, 69.85, 0)), False)
sketch3.addGeometry(Part.LineSegment(App.Vector(-171.45, 69.85, 0), App.Vector(-165.1, 69.85, 0)), False)
sketch3.addGeometry(Part.LineSegment(App.Vector(-165.1, 69.85, 0), App.Vector(-165.1, 19.05, 0)), False)
sketch3.addGeometry(Part.LineSegment(App.Vector(-165.1, 19.05, 0), App.Vector(-185.42, 39.37, 0)), False)
sketch3.addGeometry(Part.LineSegment(App.Vector(-177.8, 33.02, 0), App.Vector(-171.45, 33.02, 0)), False)
sketch3.addGeometry(Part.LineSegment(App.Vector(-171.45, 33.02, 0), App.Vector(-171.45, 43.18, 0)), False)
sketch3.addGeometry(Part.LineSegment(App.Vector(-171.45, 43.18, 0), App.Vector(-177.8, 43.18, 0)), False)
sketch3.addGeometry(Part.LineSegment(App.Vector(-177.8, 43.18, 0), App.Vector(-177.8, 33.02, 0)), False)
sketch3.addGeometry(Part.LineSegment(App.Vector(-185.42, 6.35, 0), App.Vector(-185.42, 26.67, 0)), False)
sketch3.addGeometry(Part.LineSegment(App.Vector(-185.42, 26.67, 0), App.Vector(-171.45, 12.7, 0)), False)
sketch3.addGeometry(Part.LineSegment(App.Vector(-171.45, 12.7, 0), App.Vector(-177.8, 12.7, 0)), False)
sketch3.addGeometry(Part.LineSegment(App.Vector(-177.8, 12.7, 0), App.Vector(-177.8, 6.35, 0)), False)
sketch3.addGeometry(Part.LineSegment(App.Vector(-177.8, 6.35, 0), App.Vector(-185.42, 6.35, 0)), False)
sketch3.addGeometry(Part.LineSegment(App.Vector(-171.45, 6.35, 0), App.Vector(-171.45, 12.7, 0)), False)
sketch3.addGeometry(Part.LineSegment(App.Vector(-171.45, 12.7, 0), App.Vector(-169.44, 10.69, 0)), False)
sketch3.addGeometry(Part.ArcOfCircle(Part.Circle(App.Vector(-171.23, 8.89, 0), App.Vector(0, 0, 1), 2.54), math.radians(-90), math.radians(45)), False)
sketch3.addGeometry(Part.LineSegment(App.Vector(-171.23, 6.35, 0), App.Vector(-171.45, 6.35, 0)), False)
sketch3.addConstraint(Sketcher.Constraint("Coincident", 0, 2, 1, 1))
sketch3.addConstraint(Sketcher.Constraint("Coincident", 1, 2, 2, 1))
sketch3.addConstraint(Sketcher.Constraint("Coincident", 2, 2, 3, 1))
sketch3.addConstraint(Sketcher.Constraint("Coincident", 3, 2, 4, 1))
sketch3.addConstraint(Sketcher.Constraint("Coincident", 4, 2, 5, 1))
sketch3.addConstraint(Sketcher.Constraint("Coincident", 5, 2, 6, 1))
sketch3.addConstraint(Sketcher.Constraint("Coincident", 6, 2, 7, 1))
sketch3.addConstraint(Sketcher.Constraint("Coincident", 7, 2, 0, 1))
sketch3.addConstraint(Sketcher.Constraint("Coincident", 8, 2, 9, 1))
sketch3.addConstraint(Sketcher.Constraint("Coincident", 9, 2, 10, 1))
sketch3.addConstraint(Sketcher.Constraint("Coincident", 10, 2, 11, 1))
sketch3.addConstraint(Sketcher.Constraint("Coincident", 11, 2, 8, 1))
sketch3.addConstraint(Sketcher.Constraint("Coincident", 12, 2, 13, 1))
sketch3.addConstraint(Sketcher.Constraint("Coincident", 13, 2, 14, 1))
sketch3.addConstraint(Sketcher.Constraint("Coincident", 14, 2, 15, 1))
sketch3.addConstraint(Sketcher.Constraint("Coincident", 15, 2, 16, 1))
sketch3.addConstraint(Sketcher.Constraint("Coincident", 16, 2, 12, 1))
sketch3.addConstraint(Sketcher.Constraint("Coincident", 17, 2, 18, 1))
sketch3.addConstraint(Sketcher.Constraint("Tangent", 18, 2, 19, 2))
sketch3.addConstraint(Sketcher.Constraint("Tangent", 19, 1, 20, 1))
sketch3.addConstraint(Sketcher.Constraint("Coincident", 20, 2, 17, 1))
sketch3.addConstraint(Sketcher.Constraint("Vertical", 0))
sketch3.addConstraint(Sketcher.Constraint("Horizontal", 1))
sketch3.addConstraint(Sketcher.Constraint("Vertical", 2))
sketch3.addConstraint(Sketcher.Constraint("Horizontal", 3))
sketch3.addConstraint(Sketcher.Constraint("Vertical", 4))
sketch3.addConstraint(Sketcher.Constraint("Horizontal", 5))
sketch3.addConstraint(Sketcher.Constraint("Vertical", 6))
sketch3.addConstraint(Sketcher.Constraint("Horizontal", 8))
sketch3.addConstraint(Sketcher.Constraint("Vertical", 9))
sketch3.addConstraint(Sketcher.Constraint("Horizontal", 10))
sketch3.addConstraint(Sketcher.Constraint("Vertical", 11))
sketch3.addConstraint(Sketcher.Constraint("Vertical", 12))
sketch3.addConstraint(Sketcher.Constraint("Horizontal", 14))
sketch3.addConstraint(Sketcher.Constraint("Vertical", 15))
sketch3.addConstraint(Sketcher.Constraint("Horizontal", 16))
sketch3.addConstraint(Sketcher.Constraint("Vertical", 17))
sketch3.addConstraint(Sketcher.Constraint("Horizontal", 20))
sketch3.addConstraint(Sketcher.Constraint("Coincident", 17, 2, 13, 2))
sketch3.addConstraint(Sketcher.Constraint("Parallel", 7, 13))
sketch3.addConstraint(Sketcher.Constraint("Parallel", 13, 18))
sketch3.addConstraint(Sketcher.Constraint("Horizontal", 1, 2, 4, 2))
sketch3.addConstraint(Sketcher.Constraint("Horizontal", 16, 2, 19, 1))
sketch3.addConstraint(Sketcher.Constraint("Vertical", 4, 2, 8, 2))
sketch3.addConstraint(Sketcher.Constraint("Vertical", 2, 2, 10, 2))
sketch3.addConstraint(Sketcher.Constraint("Vertical", 7, 2, 12, 2))
sketch3.addConstraint(Sketcher.Constraint("Vertical", 9, 2, 13, 2))
sketch3.addConstraint(Sketcher.Constraint("Vertical", 11, 2, 14, 2))
sketch3.addConstraint(Sketcher.Constraint("Equal", 3, 5))
sketch3.addConstraint(Sketcher.Constraint("Equal", 14, 2))
sketch3.addConstraint(Sketcher.Constraint("Equal", 4, 15))
sketch3.addConstraint(Sketcher.Constraint("Radius", 19, Q("0.1 in")))
sketch3.addConstraint(Sketcher.Constraint("DistanceY", 6, 2, 6, 1, Q("2 in")))
sketch3.addConstraint(Sketcher.Constraint("DistanceX", 1, 1, 1, 2, Q("0.3 in")))
sketch3.addConstraint(Sketcher.Constraint("DistanceY", 0, 1, 0, 2, Q("1.2 in")))
sketch3.addConstraint(Sketcher.Constraint("DistanceY", 9, 1, 9, 2, Q("0.4 in")))
sketch3.addConstraint(Sketcher.Constraint("DistanceY", 12, 1, 12, 2, Q("0.8 in")))
sketch3.addConstraint(Sketcher.Constraint("DistanceX", 1, 2, -1, 1, Q("7 in")))
sketch3.addConstraint(Sketcher.Constraint("DistanceY", -1, 1, 2, 2, Q("2.5 in")))
sketch3.addConstraint(Sketcher.Constraint("DistanceY", -1, 1, 8, 2, Q("1.3 in")))
sketch3.addConstraint(Sketcher.Constraint("DistanceY", -1, 1, 13, 2, Q("0.5 in")))
pad3 = body.newObject("PartDesign::Pad", "Pad002")
pad3.Profile = sketch3
pad3.Length = Q("0.25 in")

sketch4 = body.newObject("Sketcher::SketchObject", "Sketch003")
sketch4.AttachmentSupport = (doc.getObject("XY_Plane"), [""])
sketch4.MapMode = "FlatFace"
sketch4.addGeometry(Part.LineSegment(App.Vector(-171, 76, 0), App.Vector(-171, 70, 0)), False)
sketch4.addGeometry(Part.LineSegment(App.Vector(-171, 70, 0), App.Vector(-178, 70, 0)), False)
sketch4.addGeometry(Part.LineSegment(App.Vector(-178, 70, 0), App.Vector(-178, 76, 0)), False)
sketch4.addGeometry(Part.LineSegment(App.Vector(-178, 76, 0), App.Vector(-171, 76, 0)), False)
sketch4.addGeometry(Part.LineSegment(App.Vector(-171, 13, 0), App.Vector(-171, 0, 0)), False)
sketch4.addGeometry(Part.LineSegment(App.Vector(-171, 0, 0), App.Vector(-178, 0, 0)), False)
sketch4.addGeometry(Part.LineSegment(App.Vector(-178, 0, 0), App.Vector(-178, 13, 0)), False)
sketch4.addGeometry(Part.LineSegment(App.Vector(-178, 13, 0), App.Vector(-171, 13, 0)), False)
sketch4.addConstraint(Sketcher.Constraint("Coincident", 0, 2, 1, 1))
sketch4.addConstraint(Sketcher.Constraint("Coincident", 1, 2, 2, 1))
sketch4.addConstraint(Sketcher.Constraint("Coincident", 2, 2, 3, 1))
sketch4.addConstraint(Sketcher.Constraint("Coincident", 3, 2, 0, 1))
sketch4.addConstraint(Sketcher.Constraint("Coincident", 4, 2, 5, 1))
sketch4.addConstraint(Sketcher.Constraint("Coincident", 5, 2, 6, 1))
sketch4.addConstraint(Sketcher.Constraint("Coincident", 6, 2, 7, 1))
sketch4.addConstraint(Sketcher.Constraint("Coincident", 7, 2, 4, 1))
sketch4.addConstraint(Sketcher.Constraint("Vertical", 0))
sketch4.addConstraint(Sketcher.Constraint("Horizontal", 1))
sketch4.addConstraint(Sketcher.Constraint("Vertical", 2))
sketch4.addConstraint(Sketcher.Constraint("Horizontal", 3))
sketch4.addConstraint(Sketcher.Constraint("Vertical", 4))
sketch4.addConstraint(Sketcher.Constraint("Horizontal", 5))
sketch4.addConstraint(Sketcher.Constraint("Vertical", 6))
sketch4.addConstraint(Sketcher.Constraint("Horizontal", 7))
sketch4.addConstraint(Sketcher.Constraint("PointOnObject", 4, 2, -1))
sketch4.addConstraint(Sketcher.Constraint("Vertical", 3, 2, 4, 2))
sketch4.addConstraint(Sketcher.Constraint("Vertical", 2, 2, 5, 2))
sketch4.addConstraint(Sketcher.Constraint("Equal", 7, 0))
sketch4.addConstraint(Sketcher.Constraint("DistanceY", 4, 2, 4, 1, Q("0.5 in")))
sketch4.addConstraint(Sketcher.Constraint("DistanceX", 1, 2, -1, 1, Q("7 in")))
sketch4.addConstraint(Sketcher.Constraint("DistanceY", -1, 1, 2, 2, Q("3 in")))
sketch4.addConstraint(Sketcher.Constraint("DistanceX", 1, 2, 1, 1, Q("0.25 in")))
pocket1 = body.newObject("PartDesign::Pocket", "Pocket")
pocket1.Profile = sketch4
pocket1.Length = Q("0.25 in")
pocket1.Reversed = True

sketch5 = body.newObject("Sketcher::SketchObject", "Sketch004")
sketch5.AttachmentSupport = (doc.getObject("XY_Plane"), [""])
sketch5.MapMode = "FlatFace"
sketch5.addGeometry(Part.LineSegment(App.Vector(-154, 73, 0), App.Vector(-154, 14, 0)), False)
sketch5.addGeometry(Part.LineSegment(App.Vector(-154, 14, 0), App.Vector(-167, 14, 0)), False)
sketch5.addGeometry(Part.LineSegment(App.Vector(-167, 14, 0), App.Vector(-167, 73, 0)), False)
sketch5.addGeometry(Part.LineSegment(App.Vector(-167, 73, 0), App.Vector(-154, 73, 0)), False)
sketch5.addConstraint(Sketcher.Constraint("Coincident", 0, 2, 1, 1))
sketch5.addConstraint(Sketcher.Constraint("Coincident", 1, 2, 2, 1))
sketch5.addConstraint(Sketcher.Constraint("Coincident", 2, 2, 3, 1))
sketch5.addConstraint(Sketcher.Constraint("Coincident", 3, 2, 0, 1))
sketch5.addConstraint(Sketcher.Constraint("Vertical", 0))
sketch5.addConstraint(Sketcher.Constraint("Horizontal", 1))
sketch5.addConstraint(Sketcher.Constraint("Vertical", 2))
sketch5.addConstraint(Sketcher.Constraint("Horizontal", 3))
sketch5.addConstraint(Sketcher.Constraint("DistanceX", 1, 2, 1, 1, 12.986645))
sketch5.addConstraint(Sketcher.Constraint("DistanceY", 0, 2, 0, 1, 59.111625))
sketch5.addConstraint(Sketcher.Constraint("DistanceX", 1, 2, -1, 1, 167.389051))
sketch5.addConstraint(Sketcher.Constraint("DistanceY", -1, 1, 2, 2, 72.702659))
pad4 = body.newObject("PartDesign::Pad", "Pad003")
pad4.Profile = sketch5
pad4.Length = Q("0.25 in")

sketch6 = body.newObject("Sketcher::SketchObject", "Sketch005")
sketch6.AttachmentSupport = (doc.getObject("XY_Plane"), [""])
sketch6.MapMode = "FlatFace"
sketch6.AttachmentOffset = App.Placement(App.Vector(0, 0, 0.25 * 25.4), App.Rotation())
sketch6.addGeometry(Part.ArcOfCircle(Part.Circle(App.Vector(-188, 8.9, 0), App.Vector(0, 0, 1), 2.5), math.radians(-90), math.radians(0)), False)
sketch6.addGeometry(Part.LineSegment(App.Vector(-188, 6.3, 0), App.Vector(-185.4, 6.3, 0)), False)
sketch6.addGeometry(Part.LineSegment(App.Vector(-185.4, 6.3, 0), App.Vector(-185.4, 8.9, 0)), False)
sketch6.addGeometry(Part.LineSegment(App.Vector(-185.4, 26.7, 0), App.Vector(-186.2, 27.4, 0)), False)
sketch6.addGeometry(Part.ArcOfCircle(Part.Circle(App.Vector(-188, 25.6, 0), App.Vector(0, 0, 1), 2.5), math.radians(0), math.radians(45)), False)
sketch6.addGeometry(Part.LineSegment(App.Vector(-185.4, 25.6, 0), App.Vector(-185.4, 26.7, 0)), False)
sketch6.addGeometry(Part.LineSegment(App.Vector(-185.4, 39.4, 0), App.Vector(-185.4, 45.5, 0)), False)
sketch6.addGeometry(Part.ArcOfCircle(Part.Circle(App.Vector(-188, 45.5, 0), App.Vector(0, 0, 1), 2.5), math.radians(-135), math.radians(0)), False)
sketch6.addGeometry(Part.LineSegment(App.Vector(-189.8, 43.7, 0), App.Vector(-185.4, 39.4, 0)), False)
sketch6.addGeometry(Part.LineSegment(App.Vector(-185.4, 69.8, 0), App.Vector(-188, 69.8, 0)), False)
sketch6.addGeometry(Part.ArcOfCircle(Part.Circle(App.Vector(-188, 67.3, 0), App.Vector(0, 0, 1), 2.5), math.radians(0), math.radians(90)), False)
sketch6.addGeometry(Part.LineSegment(App.Vector(-185.4, 67.3, 0), App.Vector(-185.4, 69.8, 0)), False)
sketch6.addConstraint(Sketcher.Constraint("Tangent", 0, 1, 1, 1))
sketch6.addConstraint(Sketcher.Constraint("Coincident", 1, 2, 2, 1))
sketch6.addConstraint(Sketcher.Constraint("Tangent", 2, 2, 0, 2))
sketch6.addConstraint(Sketcher.Constraint("Tangent", 3, 2, 4, 2))
sketch6.addConstraint(Sketcher.Constraint("Tangent", 4, 1, 5, 1))
sketch6.addConstraint(Sketcher.Constraint("Coincident", 5, 2, 3, 1))
sketch6.addConstraint(Sketcher.Constraint("Tangent", 6, 2, 7, 2))
sketch6.addConstraint(Sketcher.Constraint("Tangent", 7, 1, 8, 1))
sketch6.addConstraint(Sketcher.Constraint("Coincident", 8, 2, 6, 1))
sketch6.addConstraint(Sketcher.Constraint("Tangent", 9, 2, 10, 2))
sketch6.addConstraint(Sketcher.Constraint("Tangent", 10, 1, 11, 1))
sketch6.addConstraint(Sketcher.Constraint("Coincident", 11, 2, 9, 1))
sketch6.addConstraint(Sketcher.Constraint("Horizontal", 1))
sketch6.addConstraint(Sketcher.Constraint("Vertical", 2))
sketch6.addConstraint(Sketcher.Constraint("Vertical", 5))
sketch6.addConstraint(Sketcher.Constraint("Vertical", 6))
sketch6.addConstraint(Sketcher.Constraint("Horizontal", 9))
sketch6.addConstraint(Sketcher.Constraint("Vertical", 11))
sketch6.addConstraint(Sketcher.Constraint("Equal", 0, 4))
sketch6.addConstraint(Sketcher.Constraint("Equal", 4, 7))
sketch6.addConstraint(Sketcher.Constraint("Equal", 7, 10))
sketch6.addConstraint(Sketcher.Constraint("Parallel", 3, 8))
sketch6.addConstraint(Sketcher.Constraint("Vertical", 0, 3, 4, 3))
sketch6.addConstraint(Sketcher.Constraint("Vertical", 4, 3, 7, 3))
sketch6.addConstraint(Sketcher.Constraint("Vertical", 7, 3, 10, 3))
sketch6.addConstraint(Sketcher.Constraint("Radius", 0, Q("0.1 in")))
sketch6.addConstraint(Sketcher.Constraint("Angle", 3, Q("135 deg")))
sketch6.addConstraint(Sketcher.Constraint("DistanceX", 0, 3, -1, 1, Q("7.4 in")))
sketch6.addConstraint(Sketcher.Constraint("DistanceY", 0, 3, 10, 3, Q("2.3 in")))
sketch6.addConstraint(Sketcher.Constraint("DistanceY", 2, 2, 5, 2, Q("0.7 in")))
sketch6.addConstraint(Sketcher.Constraint("DistanceY", 5, 2, 8, 2, Q("0.5 in")))
sketch6.addConstraint(Sketcher.Constraint("DistanceY", -1, 1, 0, 3, Q("0.35 in")))
pad5 = body.newObject("PartDesign::Pad", "Pad004")
pad5.Profile = sketch6
pad5.Length = Q("0.25 in")
pad5.Reversed = True

doc.recompute()
